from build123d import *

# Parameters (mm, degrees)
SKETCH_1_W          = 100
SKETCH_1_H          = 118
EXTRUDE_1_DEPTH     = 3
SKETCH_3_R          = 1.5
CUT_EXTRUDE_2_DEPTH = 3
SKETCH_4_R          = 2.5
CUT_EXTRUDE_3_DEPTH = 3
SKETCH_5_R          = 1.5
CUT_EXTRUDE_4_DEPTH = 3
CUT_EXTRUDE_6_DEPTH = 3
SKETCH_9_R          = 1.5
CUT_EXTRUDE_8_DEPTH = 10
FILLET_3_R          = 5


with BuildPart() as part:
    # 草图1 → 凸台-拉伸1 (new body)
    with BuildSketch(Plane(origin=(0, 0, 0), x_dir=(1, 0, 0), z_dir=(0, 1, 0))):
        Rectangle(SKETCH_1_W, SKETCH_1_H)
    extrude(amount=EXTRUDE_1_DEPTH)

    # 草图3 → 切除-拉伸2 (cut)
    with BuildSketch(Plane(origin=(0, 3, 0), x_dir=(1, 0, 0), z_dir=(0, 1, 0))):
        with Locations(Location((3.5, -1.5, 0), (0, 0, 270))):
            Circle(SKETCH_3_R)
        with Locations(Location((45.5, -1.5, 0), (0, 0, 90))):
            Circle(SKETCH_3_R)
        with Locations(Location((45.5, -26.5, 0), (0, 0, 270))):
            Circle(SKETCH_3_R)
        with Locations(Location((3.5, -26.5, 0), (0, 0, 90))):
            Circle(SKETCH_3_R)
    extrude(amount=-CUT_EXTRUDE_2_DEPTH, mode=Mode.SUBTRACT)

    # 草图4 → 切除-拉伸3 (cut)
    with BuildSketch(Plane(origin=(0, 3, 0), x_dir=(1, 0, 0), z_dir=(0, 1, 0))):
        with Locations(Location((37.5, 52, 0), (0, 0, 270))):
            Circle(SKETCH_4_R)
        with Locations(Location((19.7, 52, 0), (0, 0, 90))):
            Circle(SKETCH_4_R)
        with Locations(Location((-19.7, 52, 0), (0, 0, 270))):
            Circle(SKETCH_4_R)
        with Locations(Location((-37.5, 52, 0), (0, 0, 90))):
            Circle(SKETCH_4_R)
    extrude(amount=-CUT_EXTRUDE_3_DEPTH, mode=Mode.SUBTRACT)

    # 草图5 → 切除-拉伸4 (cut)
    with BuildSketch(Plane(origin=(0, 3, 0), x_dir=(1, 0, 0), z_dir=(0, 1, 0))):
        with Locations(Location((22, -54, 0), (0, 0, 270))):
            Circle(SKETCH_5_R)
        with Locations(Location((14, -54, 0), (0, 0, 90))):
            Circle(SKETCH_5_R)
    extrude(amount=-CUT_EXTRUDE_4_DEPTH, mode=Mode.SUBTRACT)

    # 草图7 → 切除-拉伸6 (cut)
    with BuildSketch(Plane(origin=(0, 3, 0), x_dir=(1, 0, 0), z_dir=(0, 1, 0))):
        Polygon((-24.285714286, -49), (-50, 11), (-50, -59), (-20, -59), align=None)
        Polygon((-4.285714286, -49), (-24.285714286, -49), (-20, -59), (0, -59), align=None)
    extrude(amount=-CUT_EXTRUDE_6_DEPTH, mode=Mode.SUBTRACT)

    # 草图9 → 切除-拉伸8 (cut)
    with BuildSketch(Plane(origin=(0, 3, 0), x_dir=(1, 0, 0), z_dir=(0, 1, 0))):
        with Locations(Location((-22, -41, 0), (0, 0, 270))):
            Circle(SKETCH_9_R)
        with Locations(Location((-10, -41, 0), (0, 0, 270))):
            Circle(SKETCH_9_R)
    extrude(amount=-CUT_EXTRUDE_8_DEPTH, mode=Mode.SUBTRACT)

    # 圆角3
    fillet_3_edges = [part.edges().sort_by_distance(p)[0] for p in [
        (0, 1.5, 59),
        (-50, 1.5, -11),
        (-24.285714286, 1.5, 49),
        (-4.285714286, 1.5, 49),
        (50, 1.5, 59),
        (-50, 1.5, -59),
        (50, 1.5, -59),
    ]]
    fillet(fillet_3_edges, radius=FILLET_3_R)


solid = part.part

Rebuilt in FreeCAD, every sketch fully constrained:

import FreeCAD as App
import Part
import Sketcher

V = App.Vector
Q = App.Units.Quantity


def edges_at(feature, points):
    """Names of the edges that pass closest to the given points."""
    edges = feature.Shape.Edges
    near = lambda p: min(range(len(edges)), key=lambda i: edges[i].distToShape(Part.Vertex(*p))[0])
    return sorted({f"Edge{near(p) + 1}" for p in points})


def add_polygon(sketch, points):
    """Adds a closed chain of lines whose ends are joined by coincident constraints."""
    first, n = sketch.GeometryCount, len(points)
    for a, b in zip(points, points[1:] + points[:1]):
        sketch.addGeometry(Part.LineSegment(App.Vector(*a, 0), App.Vector(*b, 0)), False)
    for i in range(n):
        sketch.addConstraint(Sketcher.Constraint("Coincident", first + i, 2, first + (i + 1) % n, 1))

doc = App.newDocument("Part")
body = doc.addObject("PartDesign::Body", "Body")

# Sketch on XZ plane
sketch1 = doc.addObject("Sketcher::SketchObject", "Sketch")
body.addObject(sketch1)
sketch1.AttachmentSupport = (doc.XZ_Plane, [""])
sketch1.MapMode = "FlatFace"
add_polygon(sketch1, [(-50, -59), (-50, 59), (50, 59), (50, -59)])  # lines 0-3
sketch1.addConstraint(Sketcher.Constraint("Vertical", 0))
sketch1.addConstraint(Sketcher.Constraint("Horizontal", 1))
sketch1.addConstraint(Sketcher.Constraint("Vertical", 2))
sketch1.addConstraint(Sketcher.Constraint("Horizontal", 3))
sketch1.addConstraint(Sketcher.Constraint("Symmetric", 0, 2, 2, 2, -1, 1))
sketch1.addConstraint(Sketcher.Constraint("DistanceX", 1, 1, 1, 2, Q("100 mm")))
sketch1.addConstraint(Sketcher.Constraint("DistanceY", 0, 1, 0, 2, Q("118 mm")))
pad1 = doc.addObject("PartDesign::Pad", "Pad")
body.addObject(pad1)
pad1.Profile = sketch1
pad1.Length = 3
pad1.Reversed = True

# Sketch on XZ plane
sketch2 = doc.addObject("Sketcher::SketchObject", "Sketch001")
body.addObject(sketch2)
sketch2.AttachmentSupport = (doc.XZ_Plane, [""])
sketch2.MapMode = "FlatFace"
sketch2.AttachmentOffset = App.Placement(V(0, 0, -3), App.Rotation())
sketch2.addGeometry(Part.Circle(V(3.5, 1.5, 0), V(0, 0, 1), 1.5), False)
sketch2.addGeometry(Part.Circle(V(45.5, 1.5, 0), V(0, 0, 1), 1.5), False)
sketch2.addGeometry(Part.Circle(V(45.5, 26.5, 0), V(0, 0, 1), 1.5), False)
sketch2.addGeometry(Part.Circle(V(3.5, 26.5, 0), V(0, 0, 1), 1.5), False)
sketch2.addConstraint(Sketcher.Constraint("Equal", 0, 1))
sketch2.addConstraint(Sketcher.Constraint("Equal", 1, 2))
sketch2.addConstraint(Sketcher.Constraint("Equal", 2, 3))
sketch2.addConstraint(Sketcher.Constraint("Horizontal", 0, 3, 1, 3))
sketch2.addConstraint(Sketcher.Constraint("Horizontal", 2, 3, 3, 3))
sketch2.addConstraint(Sketcher.Constraint("Vertical", 1, 3, 2, 3))
sketch2.addConstraint(Sketcher.Constraint("Vertical", 0, 3, 3, 3))
sketch2.addConstraint(Sketcher.Constraint("Diameter", 0, Q("3 mm")))
sketch2.addConstraint(Sketcher.Constraint("DistanceX", 0, 3, 1, 3, Q("42 mm")))
sketch2.addConstraint(Sketcher.Constraint("DistanceY", 1, 3, 2, 3, Q("25 mm")))
sketch2.addConstraint(Sketcher.Constraint("DistanceX", -1, 1, 0, 3, Q("3.5 mm")))
sketch2.addConstraint(Sketcher.Constraint("DistanceY", -1, 1, 0, 3, Q("1.5 mm")))
pocket1 = doc.addObject("PartDesign::Pocket", "Pocket")
body.addObject(pocket1)
pocket1.Profile = sketch2
pocket1.Length = 3
pocket1.Reversed = True

# Sketch on XZ plane
sketch3 = doc.addObject("Sketcher::SketchObject", "Sketch002")
body.addObject(sketch3)
sketch3.AttachmentSupport = (doc.XZ_Plane, [""])
sketch3.MapMode = "FlatFace"
sketch3.AttachmentOffset = App.Placement(V(0, 0, -3), App.Rotation())
sketch3.addGeometry(Part.Circle(V(37.5, -52, 0), V(0, 0, 1), 2.5), False)
sketch3.addGeometry(Part.Circle(V(19.7, -52, 0), V(0, 0, 1), 2.5), False)
sketch3.addGeometry(Part.Circle(V(-19.7, -52, 0), V(0, 0, 1), 2.5), False)
sketch3.addGeometry(Part.Circle(V(-37.5, -52, 0), V(0, 0, 1), 2.5), False)
sketch3.addConstraint(Sketcher.Constraint("Equal", 0, 1))
sketch3.addConstraint(Sketcher.Constraint("Equal", 1, 2))
sketch3.addConstraint(Sketcher.Constraint("Equal", 2, 3))
sketch3.addConstraint(Sketcher.Constraint("Symmetric", 1, 3, 2, 3, -2))
sketch3.addConstraint(Sketcher.Constraint("Symmetric", 0, 3, 3, 3, -2))
sketch3.addConstraint(Sketcher.Constraint("Horizontal", 0, 3, 1, 3))
sketch3.addConstraint(Sketcher.Constraint("Diameter", 0, Q("5 mm")))
sketch3.addConstraint(Sketcher.Constraint("DistanceY", 0, 3, -1, 1, Q("52 mm")))
sketch3.addConstraint(Sketcher.Constraint("DistanceX", 3, 3, 0, 3, Q("75 mm")))
sketch3.addConstraint(Sketcher.Constraint("DistanceX", -1, 1, 1, 3, Q("19.7 mm")))
pocket2 = doc.addObject("PartDesign::Pocket", "Pocket001")
body.addObject(pocket2)
pocket2.Profile = sketch3
pocket2.Length = 3
pocket2.Reversed = True

# Sketch on XZ plane
sketch4 = doc.addObject("Sketcher::SketchObject", "Sketch003")
body.addObject(sketch4)
sketch4.AttachmentSupport = (doc.XZ_Plane, [""])
sketch4.MapMode = "FlatFace"
sketch4.AttachmentOffset = App.Placement(V(0, 0, -3), App.Rotation())
sketch4.addGeometry(Part.Circle(V(22, 54, 0), V(0, 0, 1), 1.5), False)
sketch4.addGeometry(Part.Circle(V(14, 54, 0), V(0, 0, 1), 1.5), False)
sketch4.addConstraint(Sketcher.Constraint("Equal", 0, 1))
sketch4.addConstraint(Sketcher.Constraint("Horizontal", 0, 3, 1, 3))
sketch4.addConstraint(Sketcher.Constraint("Diameter", 0, Q("3 mm")))
sketch4.addConstraint(Sketcher.Constraint("DistanceX", -1, 1, 0, 3, Q("22 mm")))
sketch4.addConstraint(Sketcher.Constraint("DistanceY", -1, 1, 0, 3, Q("54 mm")))
sketch4.addConstraint(Sketcher.Constraint("DistanceX", -1, 1, 1, 3, Q("14 mm")))
pocket3 = doc.addObject("PartDesign::Pocket", "Pocket002")
body.addObject(pocket3)
pocket3.Profile = sketch4
pocket3.Length = 3
pocket3.Reversed = True

# Sketch on XZ plane
sketch5 = doc.addObject("Sketcher::SketchObject", "Sketch004")
body.addObject(sketch5)
sketch5.AttachmentSupport = (doc.XZ_Plane, [""])
sketch5.MapMode = "FlatFace"
sketch5.AttachmentOffset = App.Placement(V(0, 0, -3), App.Rotation())
add_polygon(sketch5, [(-24, 49), (-50, -11), (-50, 59), (0, 59), (-4, 49)])  # lines 0-4
sketch5.addConstraint(Sketcher.Constraint("Vertical", 1))
sketch5.addConstraint(Sketcher.Constraint("Horizontal", 2))
sketch5.addConstraint(Sketcher.Constraint("Horizontal", 4))
sketch5.addConstraint(Sketcher.Constraint("PointOnObject", 2, 2, -2))
sketch5.addConstraint(Sketcher.Constraint("Parallel", 0, 3))
sketch5.addConstraint(Sketcher.Constraint("DistanceX", 2, 1, 2, 2, Q("50 mm")))
sketch5.addConstraint(Sketcher.Constraint("DistanceX", 4, 2, 4, 1, Q("20 mm")))
sketch5.addConstraint(Sketcher.Constraint("DistanceY", 1, 1, 1, 2, Q("70 mm")))
sketch5.addConstraint(Sketcher.Constraint("DistanceY", 0, 2, -1, 1, Q("11 mm")))
sketch5.addConstraint(Sketcher.Constraint("DistanceY", -1, 1, 3, 2, Q("49 mm")))
pocket4 = doc.addObject("PartDesign::Pocket", "Pocket003")
body.addObject(pocket4)
pocket4.Profile = sketch5
pocket4.Length = 3
pocket4.Reversed = True

# Sketch on XZ plane
sketch6 = doc.addObject("Sketcher::SketchObject", "Sketch005")
body.addObject(sketch6)
sketch6.AttachmentSupport = (doc.XZ_Plane, [""])
sketch6.MapMode = "FlatFace"
sketch6.AttachmentOffset = App.Placement(V(0, 0, -3), App.Rotation())
sketch6.addGeometry(Part.Circle(V(-22, 41, 0), V(0, 0, 1), 1.5), False)
sketch6.addGeometry(Part.Circle(V(-10, 41, 0), V(0, 0, 1), 1.5), False)
sketch6.addConstraint(Sketcher.Constraint("Equal", 0, 1))
sketch6.addConstraint(Sketcher.Constraint("Horizontal", 0, 3, 1, 3))
sketch6.addConstraint(Sketcher.Constraint("Diameter", 0, Q("3 mm")))
sketch6.addConstraint(Sketcher.Constraint("DistanceX", 0, 3, -1, 1, Q("22 mm")))
sketch6.addConstraint(Sketcher.Constraint("DistanceY", -1, 1, 0, 3, Q("41 mm")))
sketch6.addConstraint(Sketcher.Constraint("DistanceX", 1, 3, -1, 1, Q("10 mm")))
pocket5 = doc.addObject("PartDesign::Pocket", "Pocket004")
body.addObject(pocket5)
pocket5.Profile = sketch6
pocket5.Length = 10
pocket5.Reversed = True
doc.recompute()

fillet = doc.addObject("PartDesign::Fillet", "Fillet")
body.addObject(fillet)
fillet.Base = (pocket5, edges_at(pocket5, [
    (0, 1.5, 59),
    (-50, 1.5, -11),
    (-24.286, 1.5, 49),
    (-4.286, 1.5, 49),
    (50, 1.5, 59),
    (-50, 1.5, -59),
    (50, 1.5, -59),
]))
fillet.Radius = 5

doc.recompute()
